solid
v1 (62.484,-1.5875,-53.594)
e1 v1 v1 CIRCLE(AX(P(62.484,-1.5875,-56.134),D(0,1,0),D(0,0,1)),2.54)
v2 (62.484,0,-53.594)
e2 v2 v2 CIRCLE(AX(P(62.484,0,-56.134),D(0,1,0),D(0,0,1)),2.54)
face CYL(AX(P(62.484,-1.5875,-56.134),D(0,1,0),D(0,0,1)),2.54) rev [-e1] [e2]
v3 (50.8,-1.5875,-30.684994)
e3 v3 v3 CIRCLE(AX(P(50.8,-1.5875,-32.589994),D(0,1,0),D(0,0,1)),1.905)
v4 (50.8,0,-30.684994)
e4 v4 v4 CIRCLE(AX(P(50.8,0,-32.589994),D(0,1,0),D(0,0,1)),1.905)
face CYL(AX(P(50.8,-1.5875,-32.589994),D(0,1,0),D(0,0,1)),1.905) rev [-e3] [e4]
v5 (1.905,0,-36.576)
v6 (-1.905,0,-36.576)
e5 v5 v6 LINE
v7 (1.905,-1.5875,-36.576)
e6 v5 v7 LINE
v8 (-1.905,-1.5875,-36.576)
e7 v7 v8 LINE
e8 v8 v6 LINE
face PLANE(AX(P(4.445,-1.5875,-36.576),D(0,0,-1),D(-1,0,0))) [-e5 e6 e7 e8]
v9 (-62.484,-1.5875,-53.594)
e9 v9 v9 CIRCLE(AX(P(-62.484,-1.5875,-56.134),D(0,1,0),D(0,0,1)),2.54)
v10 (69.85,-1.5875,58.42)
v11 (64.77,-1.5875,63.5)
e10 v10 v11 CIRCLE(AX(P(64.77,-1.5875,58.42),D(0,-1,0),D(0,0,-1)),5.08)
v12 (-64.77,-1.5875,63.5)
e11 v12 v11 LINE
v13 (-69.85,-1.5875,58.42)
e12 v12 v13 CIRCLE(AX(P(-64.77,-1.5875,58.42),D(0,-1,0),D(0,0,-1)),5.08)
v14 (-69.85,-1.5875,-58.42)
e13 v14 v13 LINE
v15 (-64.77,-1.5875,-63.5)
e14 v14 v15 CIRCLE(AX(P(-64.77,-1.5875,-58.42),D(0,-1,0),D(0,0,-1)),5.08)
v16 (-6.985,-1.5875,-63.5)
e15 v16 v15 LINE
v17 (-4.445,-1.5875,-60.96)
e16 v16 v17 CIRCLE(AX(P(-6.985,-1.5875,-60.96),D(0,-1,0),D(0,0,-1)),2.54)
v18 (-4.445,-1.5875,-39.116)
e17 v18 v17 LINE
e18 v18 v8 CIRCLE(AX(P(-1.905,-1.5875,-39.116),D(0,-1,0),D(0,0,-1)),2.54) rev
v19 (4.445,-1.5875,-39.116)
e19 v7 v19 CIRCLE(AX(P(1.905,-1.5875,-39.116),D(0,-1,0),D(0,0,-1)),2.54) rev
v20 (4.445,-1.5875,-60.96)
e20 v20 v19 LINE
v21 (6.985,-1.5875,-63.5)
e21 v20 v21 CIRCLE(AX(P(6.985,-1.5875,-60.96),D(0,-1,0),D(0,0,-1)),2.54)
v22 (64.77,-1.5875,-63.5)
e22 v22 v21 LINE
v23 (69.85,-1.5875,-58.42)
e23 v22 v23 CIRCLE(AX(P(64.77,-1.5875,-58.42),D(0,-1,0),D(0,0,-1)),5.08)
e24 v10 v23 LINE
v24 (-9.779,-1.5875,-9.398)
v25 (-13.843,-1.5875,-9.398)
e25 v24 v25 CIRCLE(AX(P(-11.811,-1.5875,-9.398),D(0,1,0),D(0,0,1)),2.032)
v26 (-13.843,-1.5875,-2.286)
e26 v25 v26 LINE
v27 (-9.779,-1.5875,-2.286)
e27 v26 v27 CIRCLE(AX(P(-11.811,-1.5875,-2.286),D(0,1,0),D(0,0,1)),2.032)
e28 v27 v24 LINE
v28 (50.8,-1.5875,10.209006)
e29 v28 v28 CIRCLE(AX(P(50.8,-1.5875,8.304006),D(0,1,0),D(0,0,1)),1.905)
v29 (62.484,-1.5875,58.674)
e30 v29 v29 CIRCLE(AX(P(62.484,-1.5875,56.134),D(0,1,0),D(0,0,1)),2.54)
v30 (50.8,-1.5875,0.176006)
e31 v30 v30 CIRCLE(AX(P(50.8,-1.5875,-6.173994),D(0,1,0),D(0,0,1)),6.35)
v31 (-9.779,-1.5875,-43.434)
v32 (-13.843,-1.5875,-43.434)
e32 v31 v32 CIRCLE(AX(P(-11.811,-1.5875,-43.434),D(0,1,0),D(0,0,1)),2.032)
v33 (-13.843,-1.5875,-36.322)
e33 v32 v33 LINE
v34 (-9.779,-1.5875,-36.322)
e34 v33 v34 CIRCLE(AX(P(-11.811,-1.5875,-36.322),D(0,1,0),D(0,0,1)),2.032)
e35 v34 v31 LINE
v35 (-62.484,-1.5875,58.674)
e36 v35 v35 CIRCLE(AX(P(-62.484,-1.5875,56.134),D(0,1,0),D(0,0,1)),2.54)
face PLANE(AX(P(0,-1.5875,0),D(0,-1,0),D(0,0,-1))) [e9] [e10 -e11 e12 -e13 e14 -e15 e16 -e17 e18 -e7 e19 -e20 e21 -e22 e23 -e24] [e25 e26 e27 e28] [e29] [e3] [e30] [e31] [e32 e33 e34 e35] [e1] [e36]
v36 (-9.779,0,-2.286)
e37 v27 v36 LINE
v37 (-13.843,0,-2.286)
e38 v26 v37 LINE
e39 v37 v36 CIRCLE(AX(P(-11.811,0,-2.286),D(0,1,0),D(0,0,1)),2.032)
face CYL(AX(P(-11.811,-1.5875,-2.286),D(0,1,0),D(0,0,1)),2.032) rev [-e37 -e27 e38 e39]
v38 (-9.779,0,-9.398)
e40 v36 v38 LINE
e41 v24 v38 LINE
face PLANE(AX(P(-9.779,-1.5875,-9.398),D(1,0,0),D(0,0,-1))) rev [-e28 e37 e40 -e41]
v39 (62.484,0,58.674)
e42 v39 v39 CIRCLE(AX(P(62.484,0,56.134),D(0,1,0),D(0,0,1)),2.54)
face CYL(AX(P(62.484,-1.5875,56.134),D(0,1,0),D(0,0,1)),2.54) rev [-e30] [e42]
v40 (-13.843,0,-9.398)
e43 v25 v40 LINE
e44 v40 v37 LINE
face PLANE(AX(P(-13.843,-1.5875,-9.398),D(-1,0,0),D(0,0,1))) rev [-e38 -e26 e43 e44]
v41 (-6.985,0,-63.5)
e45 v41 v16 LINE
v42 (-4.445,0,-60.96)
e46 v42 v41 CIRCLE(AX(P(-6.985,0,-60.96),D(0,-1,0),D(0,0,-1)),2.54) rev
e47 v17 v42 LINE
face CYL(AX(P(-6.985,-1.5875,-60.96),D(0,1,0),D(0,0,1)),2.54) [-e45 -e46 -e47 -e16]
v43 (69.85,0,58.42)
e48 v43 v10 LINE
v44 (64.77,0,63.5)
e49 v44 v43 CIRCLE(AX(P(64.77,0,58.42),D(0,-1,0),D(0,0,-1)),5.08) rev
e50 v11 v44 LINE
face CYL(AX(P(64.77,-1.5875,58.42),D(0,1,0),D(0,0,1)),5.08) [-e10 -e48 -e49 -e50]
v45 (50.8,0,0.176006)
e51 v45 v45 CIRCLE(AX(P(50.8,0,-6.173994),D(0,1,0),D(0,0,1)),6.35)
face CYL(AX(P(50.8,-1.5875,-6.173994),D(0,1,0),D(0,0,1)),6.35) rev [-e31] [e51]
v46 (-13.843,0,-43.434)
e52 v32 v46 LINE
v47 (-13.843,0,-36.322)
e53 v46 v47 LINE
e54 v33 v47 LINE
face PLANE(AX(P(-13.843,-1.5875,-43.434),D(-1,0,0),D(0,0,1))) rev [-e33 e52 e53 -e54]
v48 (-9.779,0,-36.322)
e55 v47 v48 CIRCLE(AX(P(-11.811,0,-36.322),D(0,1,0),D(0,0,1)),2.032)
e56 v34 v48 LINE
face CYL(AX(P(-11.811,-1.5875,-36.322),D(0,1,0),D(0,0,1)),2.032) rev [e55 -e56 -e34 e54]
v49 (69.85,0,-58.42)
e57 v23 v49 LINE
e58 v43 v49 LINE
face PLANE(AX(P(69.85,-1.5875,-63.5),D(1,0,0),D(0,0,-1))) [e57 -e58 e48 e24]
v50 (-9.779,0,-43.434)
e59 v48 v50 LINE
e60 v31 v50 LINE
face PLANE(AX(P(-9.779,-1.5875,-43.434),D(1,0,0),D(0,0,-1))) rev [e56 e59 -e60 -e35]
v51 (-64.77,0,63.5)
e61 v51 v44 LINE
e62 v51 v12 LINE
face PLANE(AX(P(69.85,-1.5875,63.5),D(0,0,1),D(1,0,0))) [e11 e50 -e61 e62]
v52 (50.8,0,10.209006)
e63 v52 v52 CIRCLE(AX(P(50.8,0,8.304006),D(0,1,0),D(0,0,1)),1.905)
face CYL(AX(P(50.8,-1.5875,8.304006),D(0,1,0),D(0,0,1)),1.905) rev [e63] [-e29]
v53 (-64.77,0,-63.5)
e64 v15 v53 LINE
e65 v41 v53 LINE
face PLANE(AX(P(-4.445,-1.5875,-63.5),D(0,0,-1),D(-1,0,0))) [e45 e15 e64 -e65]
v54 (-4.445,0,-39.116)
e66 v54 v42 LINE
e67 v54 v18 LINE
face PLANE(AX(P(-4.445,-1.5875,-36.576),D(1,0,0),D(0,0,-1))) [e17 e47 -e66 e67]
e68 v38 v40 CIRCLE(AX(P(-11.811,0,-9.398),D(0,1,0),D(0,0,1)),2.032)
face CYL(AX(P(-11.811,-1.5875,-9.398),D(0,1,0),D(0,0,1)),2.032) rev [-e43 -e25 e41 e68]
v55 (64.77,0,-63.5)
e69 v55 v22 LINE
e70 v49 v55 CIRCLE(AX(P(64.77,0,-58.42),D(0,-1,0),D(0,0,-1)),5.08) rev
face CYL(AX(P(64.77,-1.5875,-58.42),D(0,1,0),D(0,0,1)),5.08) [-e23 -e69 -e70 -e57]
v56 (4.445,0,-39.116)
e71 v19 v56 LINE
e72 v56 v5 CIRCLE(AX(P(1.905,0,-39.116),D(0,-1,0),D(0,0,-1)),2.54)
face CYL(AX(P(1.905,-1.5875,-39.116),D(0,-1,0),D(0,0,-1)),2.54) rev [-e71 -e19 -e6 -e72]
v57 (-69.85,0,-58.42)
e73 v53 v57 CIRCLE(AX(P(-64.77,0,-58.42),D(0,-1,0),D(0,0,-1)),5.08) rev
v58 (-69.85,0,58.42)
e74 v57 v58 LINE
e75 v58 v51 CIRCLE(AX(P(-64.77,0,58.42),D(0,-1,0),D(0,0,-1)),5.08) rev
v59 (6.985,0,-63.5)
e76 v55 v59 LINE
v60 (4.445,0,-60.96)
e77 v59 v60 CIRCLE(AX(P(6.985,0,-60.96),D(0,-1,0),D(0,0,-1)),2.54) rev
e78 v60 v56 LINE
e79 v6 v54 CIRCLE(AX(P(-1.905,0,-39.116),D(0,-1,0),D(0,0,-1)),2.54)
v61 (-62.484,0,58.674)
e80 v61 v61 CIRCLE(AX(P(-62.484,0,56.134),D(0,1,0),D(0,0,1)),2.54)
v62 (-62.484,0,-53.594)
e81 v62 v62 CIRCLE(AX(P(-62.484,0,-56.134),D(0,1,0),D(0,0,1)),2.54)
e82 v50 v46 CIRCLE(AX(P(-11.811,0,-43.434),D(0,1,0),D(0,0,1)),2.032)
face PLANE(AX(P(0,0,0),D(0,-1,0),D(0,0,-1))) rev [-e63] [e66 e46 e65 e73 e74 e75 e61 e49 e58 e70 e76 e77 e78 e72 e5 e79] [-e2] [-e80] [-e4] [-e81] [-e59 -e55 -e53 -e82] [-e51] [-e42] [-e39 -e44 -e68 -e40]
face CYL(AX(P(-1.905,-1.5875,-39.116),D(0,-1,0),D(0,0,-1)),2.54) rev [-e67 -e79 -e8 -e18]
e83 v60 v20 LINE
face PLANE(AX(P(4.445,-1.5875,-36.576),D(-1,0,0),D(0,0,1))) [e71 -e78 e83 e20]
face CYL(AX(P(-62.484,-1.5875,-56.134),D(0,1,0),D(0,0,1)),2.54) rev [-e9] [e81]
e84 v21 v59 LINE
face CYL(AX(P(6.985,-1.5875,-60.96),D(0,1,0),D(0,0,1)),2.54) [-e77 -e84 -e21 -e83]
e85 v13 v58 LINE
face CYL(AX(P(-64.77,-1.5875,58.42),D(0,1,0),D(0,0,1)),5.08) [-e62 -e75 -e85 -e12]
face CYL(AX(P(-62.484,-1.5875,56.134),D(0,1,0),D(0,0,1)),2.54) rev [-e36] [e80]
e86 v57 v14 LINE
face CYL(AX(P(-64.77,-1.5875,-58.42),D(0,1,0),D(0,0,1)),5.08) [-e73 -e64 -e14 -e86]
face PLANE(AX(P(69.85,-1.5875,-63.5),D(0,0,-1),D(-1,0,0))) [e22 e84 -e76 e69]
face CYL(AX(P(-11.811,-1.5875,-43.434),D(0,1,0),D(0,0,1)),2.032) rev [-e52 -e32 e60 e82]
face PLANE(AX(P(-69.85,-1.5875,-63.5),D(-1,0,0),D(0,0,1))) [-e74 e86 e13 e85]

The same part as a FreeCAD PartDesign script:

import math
import FreeCAD as App
import Part
import Sketcher
from FreeCAD import Vector
Q = App.Units.Quantity


def edges_at(feature, points):
    """Names of the edges that pass closest to the given points."""
    edges = feature.Shape.Edges
    near = lambda p: min(range(len(edges)), key=lambda i: edges[i].distToShape(Part.Vertex(*p))[0])
    return sorted({f"Edge{near(p) + 1}" for p in points})

doc = App.newDocument("Part")
body = doc.addObject("PartDesign::Body", "Body")

# Sketch on XZ plane
sketch1 = doc.addObject("Sketcher::SketchObject", "Sketch")
body.addObject(sketch1)
sketch1.AttachmentSupport = (doc.XZ_Plane, [""])
sketch1.MapMode = "FlatFace"
sketch1.addGeometry([
    Part.LineSegment(Vector(69.8, -63.5, 0), Vector(4.4, -63.5, 0)),  # 0
    Part.LineSegment(Vector(4.4, -63.5, 0), Vector(4.4, -36.6, 0)),  # 1
    Part.LineSegment(Vector(4.4, -36.6, 0), Vector(-4.4, -36.6, 0)),  # 2
    Part.LineSegment(Vector(-4.4, -36.6, 0), Vector(-4.4, -63.5, 0)),  # 3
    Part.LineSegment(Vector(-4.4, -63.5, 0), Vector(-69.8, -63.5, 0)),  # 4
    Part.LineSegment(Vector(-69.8, -63.5, 0), Vector(-69.8, 63.5, 0)),  # 5
    Part.LineSegment(Vector(-69.8, 63.5, 0), Vector(69.8, 63.5, 0)),  # 6
    Part.LineSegment(Vector(69.8, 63.5, 0), Vector(69.8, -63.5, 0)),  # 7
    Part.Circle(Vector(-62.5, 56.1, 0), Vector(0, 0, 1), 2.5),  # 8
    Part.Circle(Vector(62.5, 56.1, 0), Vector(0, 0, 1), 2.5),  # 9
    Part.Circle(Vector(50.8, 8.3, 0), Vector(0, 0, 1), 1.9),  # 10
    Part.ArcOfCircle(Part.Circle(Vector(-11.8, -9.4, 0), Vector(0, 0, 1), 2), math.radians(180), math.radians(360)),  # 11
    Part.LineSegment(Vector(-9.8, -9.4, 0), Vector(-9.8, -2.3, 0)),  # 12
    Part.ArcOfCircle(Part.Circle(Vector(-11.8, -2.3, 0), Vector(0, 0, 1), 2), math.radians(0), math.radians(180)),  # 13
    Part.LineSegment(Vector(-13.8, -2.3, 0), Vector(-13.8, -9.4, 0)),  # 14
    Part.Circle(Vector(-62.5, -56.1, 0), Vector(0, 0, 1), 2.5),  # 15
    Part.ArcOfCircle(Part.Circle(Vector(-11.8, -43.4, 0), Vector(0, 0, 1), 2), math.radians(180), math.radians(360)),  # 16
    Part.LineSegment(Vector(-9.8, -43.4, 0), Vector(-9.8, -36.3, 0)),  # 17
    Part.ArcOfCircle(Part.Circle(Vector(-11.8, -36.3, 0), Vector(0, 0, 1), 2), math.radians(0), math.radians(180)),  # 18
    Part.LineSegment(Vector(-13.8, -36.3, 0), Vector(-13.8, -43.4, 0)),  # 19
    Part.Circle(Vector(50.8, -6.2, 0), Vector(0, 0, 1), 6.3),  # 20
    Part.Circle(Vector(50.8, -32.6, 0), Vector(0, 0, 1), 1.9),  # 21
    Part.Circle(Vector(62.5, -56.1, 0), Vector(0, 0, 1), 2.5),  # 22
], False)
sketch1.addConstraint([
    Sketcher.Constraint("Coincident", 0, 2, 1, 1),
    Sketcher.Constraint("Coincident", 1, 2, 2, 1),
    Sketcher.Constraint("Coincident", 2, 2, 3, 1),
    Sketcher.Constraint("Coincident", 3, 2, 4, 1),
    Sketcher.Constraint("Coincident", 4, 2, 5, 1),
    Sketcher.Constraint("Coincident", 5, 2, 6, 1),
    Sketcher.Constraint("Coincident", 6, 2, 7, 1),
    Sketcher.Constraint("Coincident", 7, 2, 0, 1),
    Sketcher.Constraint("Tangent", 11, 2, 12, 1),
    Sketcher.Constraint("Tangent", 12, 2, 13, 1),
    Sketcher.Constraint("Tangent", 13, 2, 14, 1),
    Sketcher.Constraint("Tangent", 14, 2, 11, 1),
    Sketcher.Constraint("Tangent", 16, 2, 17, 1),
    Sketcher.Constraint("Tangent", 17, 2, 18, 1),
    Sketcher.Constraint("Tangent", 18, 2, 19, 1),
    Sketcher.Constraint("Tangent", 19, 2, 16, 1),
    Sketcher.Constraint("Horizontal", 0),
    Sketcher.Constraint("Vertical", 1),
    Sketcher.Constraint("Horizontal", 2),
    Sketcher.Constraint("Vertical", 3),
    Sketcher.Constraint("Horizontal", 4),
    Sketcher.Constraint("Vertical", 5),
    Sketcher.Constraint("Horizontal", 6),
    Sketcher.Constraint("Vertical", 7),
    Sketcher.Constraint("Vertical", 12),
    Sketcher.Constraint("Vertical", 14),
    Sketcher.Constraint("Vertical", 17),
    Sketcher.Constraint("Vertical", 19),
    Sketcher.Constraint("Equal", 8, 9),
    Sketcher.Constraint("Equal", 9, 15),
    Sketcher.Constraint("Equal", 13, 16),
    Sketcher.Constraint("Equal", 10, 21),
    Sketcher.Constraint("Equal", 15, 22),
    Sketcher.Constraint("Symmetric", 9, 3, 15, 3, -1, 1),
    Sketcher.Constraint("Symmetric", 8, 3, 22, 3, -1, 1),
    Sketcher.Constraint("Symmetric", 4, 2, 6, 2, -1, 1),
    Sketcher.Constraint("Symmetric", 8, 3, 9, 3, -2),
    Sketcher.Constraint("Symmetric", 0, 2, 3, 2, -2),
    Sketcher.Constraint("Vertical", 13, 3, 16, 3),
    Sketcher.Constraint("Vertical", 10, 3, 20, 3),
    Sketcher.Constraint("Vertical", 20, 3, 21, 3),
    Sketcher.Constraint("Equal", 14, 17),
    Sketcher.Constraint("Diameter", 8, Q("0.2 in")),
    Sketcher.Constraint("Diameter", 20, Q("0.5 in")),
    Sketcher.Constraint("Diameter", 10, Q("0.15 in")),
    Sketcher.Constraint("DistanceY", 5, 1, 5, 2, Q("5 in")),
    Sketcher.Constraint("Radius", 11, Q("0.08 in")),
    Sketcher.Constraint("DistanceX", 6, 1, 6, 2, Q("5.5 in")),
    Sketcher.Constraint("DistanceX", -1, 1, 10, 3, Q("2 in")),
    Sketcher.Constraint("DistanceX", 2, 2, 2, 1, Q("0.35 in")),
    Sketcher.Constraint("DistanceY", 1, 1, 1, 2, Q("1.06 in")),
    Sketcher.Constraint("DistanceY", 12, 1, 12, 2, Q("0.28 in")),
    Sketcher.Constraint("DistanceY", 13, 3, 8, 3, Q("2.3 in")),
    Sketcher.Constraint("DistanceY", 15, 3, 16, 3, Q("0.5 in")),
    Sketcher.Constraint("DistanceX", 8, 3, -1, 1, Q("2.46 in")),
    Sketcher.Constraint("DistanceY", -1, 1, 8, 3, Q("2.21 in")),
    Sketcher.Constraint("DistanceY", 20, 3, 10, 3, Q("0.57 in")),
    Sketcher.Constraint("DistanceY", 21, 3, 20, 3, Q("1.04 in")),
    Sketcher.Constraint("DistanceX", 16, 3, 0, 2, Q("0.64 in")),
    Sketcher.Constraint("DistanceY", -1, 1, 10, 3, Q("8.304006 mm")),
])
pad1 = doc.addObject("PartDesign::Pad", "Pad")
body.addObject(pad1)
pad1.Profile = sketch1
pad1.Length = Q("0.0625 in")
doc.recompute()

fillet = doc.addObject("PartDesign::Fillet", "Fillet")
body.addObject(fillet)
fillet.Base = (pad1, edges_at(pad1, [
    (-69.85, -0.794, -63.5),
    (69.85, -0.794, -63.5),
    (69.85, -0.794, 63.5),
    (-69.85, -0.794, 63.5),
]))
fillet.Radius = Q("0.2 in")
doc.recompute()

fillet2 = doc.addObject("PartDesign::Fillet", "Fillet001")
body.addObject(fillet2)
fillet2.Base = (fillet, edges_at(fillet, [
    (-4.445, -0.794, -63.5),
    (-4.445, -0.794, -36.576),
    (4.445, -0.794, -36.576),
    (4.445, -0.794, -63.5),
]))
fillet2.Radius = Q("0.1 in")

doc.recompute()
